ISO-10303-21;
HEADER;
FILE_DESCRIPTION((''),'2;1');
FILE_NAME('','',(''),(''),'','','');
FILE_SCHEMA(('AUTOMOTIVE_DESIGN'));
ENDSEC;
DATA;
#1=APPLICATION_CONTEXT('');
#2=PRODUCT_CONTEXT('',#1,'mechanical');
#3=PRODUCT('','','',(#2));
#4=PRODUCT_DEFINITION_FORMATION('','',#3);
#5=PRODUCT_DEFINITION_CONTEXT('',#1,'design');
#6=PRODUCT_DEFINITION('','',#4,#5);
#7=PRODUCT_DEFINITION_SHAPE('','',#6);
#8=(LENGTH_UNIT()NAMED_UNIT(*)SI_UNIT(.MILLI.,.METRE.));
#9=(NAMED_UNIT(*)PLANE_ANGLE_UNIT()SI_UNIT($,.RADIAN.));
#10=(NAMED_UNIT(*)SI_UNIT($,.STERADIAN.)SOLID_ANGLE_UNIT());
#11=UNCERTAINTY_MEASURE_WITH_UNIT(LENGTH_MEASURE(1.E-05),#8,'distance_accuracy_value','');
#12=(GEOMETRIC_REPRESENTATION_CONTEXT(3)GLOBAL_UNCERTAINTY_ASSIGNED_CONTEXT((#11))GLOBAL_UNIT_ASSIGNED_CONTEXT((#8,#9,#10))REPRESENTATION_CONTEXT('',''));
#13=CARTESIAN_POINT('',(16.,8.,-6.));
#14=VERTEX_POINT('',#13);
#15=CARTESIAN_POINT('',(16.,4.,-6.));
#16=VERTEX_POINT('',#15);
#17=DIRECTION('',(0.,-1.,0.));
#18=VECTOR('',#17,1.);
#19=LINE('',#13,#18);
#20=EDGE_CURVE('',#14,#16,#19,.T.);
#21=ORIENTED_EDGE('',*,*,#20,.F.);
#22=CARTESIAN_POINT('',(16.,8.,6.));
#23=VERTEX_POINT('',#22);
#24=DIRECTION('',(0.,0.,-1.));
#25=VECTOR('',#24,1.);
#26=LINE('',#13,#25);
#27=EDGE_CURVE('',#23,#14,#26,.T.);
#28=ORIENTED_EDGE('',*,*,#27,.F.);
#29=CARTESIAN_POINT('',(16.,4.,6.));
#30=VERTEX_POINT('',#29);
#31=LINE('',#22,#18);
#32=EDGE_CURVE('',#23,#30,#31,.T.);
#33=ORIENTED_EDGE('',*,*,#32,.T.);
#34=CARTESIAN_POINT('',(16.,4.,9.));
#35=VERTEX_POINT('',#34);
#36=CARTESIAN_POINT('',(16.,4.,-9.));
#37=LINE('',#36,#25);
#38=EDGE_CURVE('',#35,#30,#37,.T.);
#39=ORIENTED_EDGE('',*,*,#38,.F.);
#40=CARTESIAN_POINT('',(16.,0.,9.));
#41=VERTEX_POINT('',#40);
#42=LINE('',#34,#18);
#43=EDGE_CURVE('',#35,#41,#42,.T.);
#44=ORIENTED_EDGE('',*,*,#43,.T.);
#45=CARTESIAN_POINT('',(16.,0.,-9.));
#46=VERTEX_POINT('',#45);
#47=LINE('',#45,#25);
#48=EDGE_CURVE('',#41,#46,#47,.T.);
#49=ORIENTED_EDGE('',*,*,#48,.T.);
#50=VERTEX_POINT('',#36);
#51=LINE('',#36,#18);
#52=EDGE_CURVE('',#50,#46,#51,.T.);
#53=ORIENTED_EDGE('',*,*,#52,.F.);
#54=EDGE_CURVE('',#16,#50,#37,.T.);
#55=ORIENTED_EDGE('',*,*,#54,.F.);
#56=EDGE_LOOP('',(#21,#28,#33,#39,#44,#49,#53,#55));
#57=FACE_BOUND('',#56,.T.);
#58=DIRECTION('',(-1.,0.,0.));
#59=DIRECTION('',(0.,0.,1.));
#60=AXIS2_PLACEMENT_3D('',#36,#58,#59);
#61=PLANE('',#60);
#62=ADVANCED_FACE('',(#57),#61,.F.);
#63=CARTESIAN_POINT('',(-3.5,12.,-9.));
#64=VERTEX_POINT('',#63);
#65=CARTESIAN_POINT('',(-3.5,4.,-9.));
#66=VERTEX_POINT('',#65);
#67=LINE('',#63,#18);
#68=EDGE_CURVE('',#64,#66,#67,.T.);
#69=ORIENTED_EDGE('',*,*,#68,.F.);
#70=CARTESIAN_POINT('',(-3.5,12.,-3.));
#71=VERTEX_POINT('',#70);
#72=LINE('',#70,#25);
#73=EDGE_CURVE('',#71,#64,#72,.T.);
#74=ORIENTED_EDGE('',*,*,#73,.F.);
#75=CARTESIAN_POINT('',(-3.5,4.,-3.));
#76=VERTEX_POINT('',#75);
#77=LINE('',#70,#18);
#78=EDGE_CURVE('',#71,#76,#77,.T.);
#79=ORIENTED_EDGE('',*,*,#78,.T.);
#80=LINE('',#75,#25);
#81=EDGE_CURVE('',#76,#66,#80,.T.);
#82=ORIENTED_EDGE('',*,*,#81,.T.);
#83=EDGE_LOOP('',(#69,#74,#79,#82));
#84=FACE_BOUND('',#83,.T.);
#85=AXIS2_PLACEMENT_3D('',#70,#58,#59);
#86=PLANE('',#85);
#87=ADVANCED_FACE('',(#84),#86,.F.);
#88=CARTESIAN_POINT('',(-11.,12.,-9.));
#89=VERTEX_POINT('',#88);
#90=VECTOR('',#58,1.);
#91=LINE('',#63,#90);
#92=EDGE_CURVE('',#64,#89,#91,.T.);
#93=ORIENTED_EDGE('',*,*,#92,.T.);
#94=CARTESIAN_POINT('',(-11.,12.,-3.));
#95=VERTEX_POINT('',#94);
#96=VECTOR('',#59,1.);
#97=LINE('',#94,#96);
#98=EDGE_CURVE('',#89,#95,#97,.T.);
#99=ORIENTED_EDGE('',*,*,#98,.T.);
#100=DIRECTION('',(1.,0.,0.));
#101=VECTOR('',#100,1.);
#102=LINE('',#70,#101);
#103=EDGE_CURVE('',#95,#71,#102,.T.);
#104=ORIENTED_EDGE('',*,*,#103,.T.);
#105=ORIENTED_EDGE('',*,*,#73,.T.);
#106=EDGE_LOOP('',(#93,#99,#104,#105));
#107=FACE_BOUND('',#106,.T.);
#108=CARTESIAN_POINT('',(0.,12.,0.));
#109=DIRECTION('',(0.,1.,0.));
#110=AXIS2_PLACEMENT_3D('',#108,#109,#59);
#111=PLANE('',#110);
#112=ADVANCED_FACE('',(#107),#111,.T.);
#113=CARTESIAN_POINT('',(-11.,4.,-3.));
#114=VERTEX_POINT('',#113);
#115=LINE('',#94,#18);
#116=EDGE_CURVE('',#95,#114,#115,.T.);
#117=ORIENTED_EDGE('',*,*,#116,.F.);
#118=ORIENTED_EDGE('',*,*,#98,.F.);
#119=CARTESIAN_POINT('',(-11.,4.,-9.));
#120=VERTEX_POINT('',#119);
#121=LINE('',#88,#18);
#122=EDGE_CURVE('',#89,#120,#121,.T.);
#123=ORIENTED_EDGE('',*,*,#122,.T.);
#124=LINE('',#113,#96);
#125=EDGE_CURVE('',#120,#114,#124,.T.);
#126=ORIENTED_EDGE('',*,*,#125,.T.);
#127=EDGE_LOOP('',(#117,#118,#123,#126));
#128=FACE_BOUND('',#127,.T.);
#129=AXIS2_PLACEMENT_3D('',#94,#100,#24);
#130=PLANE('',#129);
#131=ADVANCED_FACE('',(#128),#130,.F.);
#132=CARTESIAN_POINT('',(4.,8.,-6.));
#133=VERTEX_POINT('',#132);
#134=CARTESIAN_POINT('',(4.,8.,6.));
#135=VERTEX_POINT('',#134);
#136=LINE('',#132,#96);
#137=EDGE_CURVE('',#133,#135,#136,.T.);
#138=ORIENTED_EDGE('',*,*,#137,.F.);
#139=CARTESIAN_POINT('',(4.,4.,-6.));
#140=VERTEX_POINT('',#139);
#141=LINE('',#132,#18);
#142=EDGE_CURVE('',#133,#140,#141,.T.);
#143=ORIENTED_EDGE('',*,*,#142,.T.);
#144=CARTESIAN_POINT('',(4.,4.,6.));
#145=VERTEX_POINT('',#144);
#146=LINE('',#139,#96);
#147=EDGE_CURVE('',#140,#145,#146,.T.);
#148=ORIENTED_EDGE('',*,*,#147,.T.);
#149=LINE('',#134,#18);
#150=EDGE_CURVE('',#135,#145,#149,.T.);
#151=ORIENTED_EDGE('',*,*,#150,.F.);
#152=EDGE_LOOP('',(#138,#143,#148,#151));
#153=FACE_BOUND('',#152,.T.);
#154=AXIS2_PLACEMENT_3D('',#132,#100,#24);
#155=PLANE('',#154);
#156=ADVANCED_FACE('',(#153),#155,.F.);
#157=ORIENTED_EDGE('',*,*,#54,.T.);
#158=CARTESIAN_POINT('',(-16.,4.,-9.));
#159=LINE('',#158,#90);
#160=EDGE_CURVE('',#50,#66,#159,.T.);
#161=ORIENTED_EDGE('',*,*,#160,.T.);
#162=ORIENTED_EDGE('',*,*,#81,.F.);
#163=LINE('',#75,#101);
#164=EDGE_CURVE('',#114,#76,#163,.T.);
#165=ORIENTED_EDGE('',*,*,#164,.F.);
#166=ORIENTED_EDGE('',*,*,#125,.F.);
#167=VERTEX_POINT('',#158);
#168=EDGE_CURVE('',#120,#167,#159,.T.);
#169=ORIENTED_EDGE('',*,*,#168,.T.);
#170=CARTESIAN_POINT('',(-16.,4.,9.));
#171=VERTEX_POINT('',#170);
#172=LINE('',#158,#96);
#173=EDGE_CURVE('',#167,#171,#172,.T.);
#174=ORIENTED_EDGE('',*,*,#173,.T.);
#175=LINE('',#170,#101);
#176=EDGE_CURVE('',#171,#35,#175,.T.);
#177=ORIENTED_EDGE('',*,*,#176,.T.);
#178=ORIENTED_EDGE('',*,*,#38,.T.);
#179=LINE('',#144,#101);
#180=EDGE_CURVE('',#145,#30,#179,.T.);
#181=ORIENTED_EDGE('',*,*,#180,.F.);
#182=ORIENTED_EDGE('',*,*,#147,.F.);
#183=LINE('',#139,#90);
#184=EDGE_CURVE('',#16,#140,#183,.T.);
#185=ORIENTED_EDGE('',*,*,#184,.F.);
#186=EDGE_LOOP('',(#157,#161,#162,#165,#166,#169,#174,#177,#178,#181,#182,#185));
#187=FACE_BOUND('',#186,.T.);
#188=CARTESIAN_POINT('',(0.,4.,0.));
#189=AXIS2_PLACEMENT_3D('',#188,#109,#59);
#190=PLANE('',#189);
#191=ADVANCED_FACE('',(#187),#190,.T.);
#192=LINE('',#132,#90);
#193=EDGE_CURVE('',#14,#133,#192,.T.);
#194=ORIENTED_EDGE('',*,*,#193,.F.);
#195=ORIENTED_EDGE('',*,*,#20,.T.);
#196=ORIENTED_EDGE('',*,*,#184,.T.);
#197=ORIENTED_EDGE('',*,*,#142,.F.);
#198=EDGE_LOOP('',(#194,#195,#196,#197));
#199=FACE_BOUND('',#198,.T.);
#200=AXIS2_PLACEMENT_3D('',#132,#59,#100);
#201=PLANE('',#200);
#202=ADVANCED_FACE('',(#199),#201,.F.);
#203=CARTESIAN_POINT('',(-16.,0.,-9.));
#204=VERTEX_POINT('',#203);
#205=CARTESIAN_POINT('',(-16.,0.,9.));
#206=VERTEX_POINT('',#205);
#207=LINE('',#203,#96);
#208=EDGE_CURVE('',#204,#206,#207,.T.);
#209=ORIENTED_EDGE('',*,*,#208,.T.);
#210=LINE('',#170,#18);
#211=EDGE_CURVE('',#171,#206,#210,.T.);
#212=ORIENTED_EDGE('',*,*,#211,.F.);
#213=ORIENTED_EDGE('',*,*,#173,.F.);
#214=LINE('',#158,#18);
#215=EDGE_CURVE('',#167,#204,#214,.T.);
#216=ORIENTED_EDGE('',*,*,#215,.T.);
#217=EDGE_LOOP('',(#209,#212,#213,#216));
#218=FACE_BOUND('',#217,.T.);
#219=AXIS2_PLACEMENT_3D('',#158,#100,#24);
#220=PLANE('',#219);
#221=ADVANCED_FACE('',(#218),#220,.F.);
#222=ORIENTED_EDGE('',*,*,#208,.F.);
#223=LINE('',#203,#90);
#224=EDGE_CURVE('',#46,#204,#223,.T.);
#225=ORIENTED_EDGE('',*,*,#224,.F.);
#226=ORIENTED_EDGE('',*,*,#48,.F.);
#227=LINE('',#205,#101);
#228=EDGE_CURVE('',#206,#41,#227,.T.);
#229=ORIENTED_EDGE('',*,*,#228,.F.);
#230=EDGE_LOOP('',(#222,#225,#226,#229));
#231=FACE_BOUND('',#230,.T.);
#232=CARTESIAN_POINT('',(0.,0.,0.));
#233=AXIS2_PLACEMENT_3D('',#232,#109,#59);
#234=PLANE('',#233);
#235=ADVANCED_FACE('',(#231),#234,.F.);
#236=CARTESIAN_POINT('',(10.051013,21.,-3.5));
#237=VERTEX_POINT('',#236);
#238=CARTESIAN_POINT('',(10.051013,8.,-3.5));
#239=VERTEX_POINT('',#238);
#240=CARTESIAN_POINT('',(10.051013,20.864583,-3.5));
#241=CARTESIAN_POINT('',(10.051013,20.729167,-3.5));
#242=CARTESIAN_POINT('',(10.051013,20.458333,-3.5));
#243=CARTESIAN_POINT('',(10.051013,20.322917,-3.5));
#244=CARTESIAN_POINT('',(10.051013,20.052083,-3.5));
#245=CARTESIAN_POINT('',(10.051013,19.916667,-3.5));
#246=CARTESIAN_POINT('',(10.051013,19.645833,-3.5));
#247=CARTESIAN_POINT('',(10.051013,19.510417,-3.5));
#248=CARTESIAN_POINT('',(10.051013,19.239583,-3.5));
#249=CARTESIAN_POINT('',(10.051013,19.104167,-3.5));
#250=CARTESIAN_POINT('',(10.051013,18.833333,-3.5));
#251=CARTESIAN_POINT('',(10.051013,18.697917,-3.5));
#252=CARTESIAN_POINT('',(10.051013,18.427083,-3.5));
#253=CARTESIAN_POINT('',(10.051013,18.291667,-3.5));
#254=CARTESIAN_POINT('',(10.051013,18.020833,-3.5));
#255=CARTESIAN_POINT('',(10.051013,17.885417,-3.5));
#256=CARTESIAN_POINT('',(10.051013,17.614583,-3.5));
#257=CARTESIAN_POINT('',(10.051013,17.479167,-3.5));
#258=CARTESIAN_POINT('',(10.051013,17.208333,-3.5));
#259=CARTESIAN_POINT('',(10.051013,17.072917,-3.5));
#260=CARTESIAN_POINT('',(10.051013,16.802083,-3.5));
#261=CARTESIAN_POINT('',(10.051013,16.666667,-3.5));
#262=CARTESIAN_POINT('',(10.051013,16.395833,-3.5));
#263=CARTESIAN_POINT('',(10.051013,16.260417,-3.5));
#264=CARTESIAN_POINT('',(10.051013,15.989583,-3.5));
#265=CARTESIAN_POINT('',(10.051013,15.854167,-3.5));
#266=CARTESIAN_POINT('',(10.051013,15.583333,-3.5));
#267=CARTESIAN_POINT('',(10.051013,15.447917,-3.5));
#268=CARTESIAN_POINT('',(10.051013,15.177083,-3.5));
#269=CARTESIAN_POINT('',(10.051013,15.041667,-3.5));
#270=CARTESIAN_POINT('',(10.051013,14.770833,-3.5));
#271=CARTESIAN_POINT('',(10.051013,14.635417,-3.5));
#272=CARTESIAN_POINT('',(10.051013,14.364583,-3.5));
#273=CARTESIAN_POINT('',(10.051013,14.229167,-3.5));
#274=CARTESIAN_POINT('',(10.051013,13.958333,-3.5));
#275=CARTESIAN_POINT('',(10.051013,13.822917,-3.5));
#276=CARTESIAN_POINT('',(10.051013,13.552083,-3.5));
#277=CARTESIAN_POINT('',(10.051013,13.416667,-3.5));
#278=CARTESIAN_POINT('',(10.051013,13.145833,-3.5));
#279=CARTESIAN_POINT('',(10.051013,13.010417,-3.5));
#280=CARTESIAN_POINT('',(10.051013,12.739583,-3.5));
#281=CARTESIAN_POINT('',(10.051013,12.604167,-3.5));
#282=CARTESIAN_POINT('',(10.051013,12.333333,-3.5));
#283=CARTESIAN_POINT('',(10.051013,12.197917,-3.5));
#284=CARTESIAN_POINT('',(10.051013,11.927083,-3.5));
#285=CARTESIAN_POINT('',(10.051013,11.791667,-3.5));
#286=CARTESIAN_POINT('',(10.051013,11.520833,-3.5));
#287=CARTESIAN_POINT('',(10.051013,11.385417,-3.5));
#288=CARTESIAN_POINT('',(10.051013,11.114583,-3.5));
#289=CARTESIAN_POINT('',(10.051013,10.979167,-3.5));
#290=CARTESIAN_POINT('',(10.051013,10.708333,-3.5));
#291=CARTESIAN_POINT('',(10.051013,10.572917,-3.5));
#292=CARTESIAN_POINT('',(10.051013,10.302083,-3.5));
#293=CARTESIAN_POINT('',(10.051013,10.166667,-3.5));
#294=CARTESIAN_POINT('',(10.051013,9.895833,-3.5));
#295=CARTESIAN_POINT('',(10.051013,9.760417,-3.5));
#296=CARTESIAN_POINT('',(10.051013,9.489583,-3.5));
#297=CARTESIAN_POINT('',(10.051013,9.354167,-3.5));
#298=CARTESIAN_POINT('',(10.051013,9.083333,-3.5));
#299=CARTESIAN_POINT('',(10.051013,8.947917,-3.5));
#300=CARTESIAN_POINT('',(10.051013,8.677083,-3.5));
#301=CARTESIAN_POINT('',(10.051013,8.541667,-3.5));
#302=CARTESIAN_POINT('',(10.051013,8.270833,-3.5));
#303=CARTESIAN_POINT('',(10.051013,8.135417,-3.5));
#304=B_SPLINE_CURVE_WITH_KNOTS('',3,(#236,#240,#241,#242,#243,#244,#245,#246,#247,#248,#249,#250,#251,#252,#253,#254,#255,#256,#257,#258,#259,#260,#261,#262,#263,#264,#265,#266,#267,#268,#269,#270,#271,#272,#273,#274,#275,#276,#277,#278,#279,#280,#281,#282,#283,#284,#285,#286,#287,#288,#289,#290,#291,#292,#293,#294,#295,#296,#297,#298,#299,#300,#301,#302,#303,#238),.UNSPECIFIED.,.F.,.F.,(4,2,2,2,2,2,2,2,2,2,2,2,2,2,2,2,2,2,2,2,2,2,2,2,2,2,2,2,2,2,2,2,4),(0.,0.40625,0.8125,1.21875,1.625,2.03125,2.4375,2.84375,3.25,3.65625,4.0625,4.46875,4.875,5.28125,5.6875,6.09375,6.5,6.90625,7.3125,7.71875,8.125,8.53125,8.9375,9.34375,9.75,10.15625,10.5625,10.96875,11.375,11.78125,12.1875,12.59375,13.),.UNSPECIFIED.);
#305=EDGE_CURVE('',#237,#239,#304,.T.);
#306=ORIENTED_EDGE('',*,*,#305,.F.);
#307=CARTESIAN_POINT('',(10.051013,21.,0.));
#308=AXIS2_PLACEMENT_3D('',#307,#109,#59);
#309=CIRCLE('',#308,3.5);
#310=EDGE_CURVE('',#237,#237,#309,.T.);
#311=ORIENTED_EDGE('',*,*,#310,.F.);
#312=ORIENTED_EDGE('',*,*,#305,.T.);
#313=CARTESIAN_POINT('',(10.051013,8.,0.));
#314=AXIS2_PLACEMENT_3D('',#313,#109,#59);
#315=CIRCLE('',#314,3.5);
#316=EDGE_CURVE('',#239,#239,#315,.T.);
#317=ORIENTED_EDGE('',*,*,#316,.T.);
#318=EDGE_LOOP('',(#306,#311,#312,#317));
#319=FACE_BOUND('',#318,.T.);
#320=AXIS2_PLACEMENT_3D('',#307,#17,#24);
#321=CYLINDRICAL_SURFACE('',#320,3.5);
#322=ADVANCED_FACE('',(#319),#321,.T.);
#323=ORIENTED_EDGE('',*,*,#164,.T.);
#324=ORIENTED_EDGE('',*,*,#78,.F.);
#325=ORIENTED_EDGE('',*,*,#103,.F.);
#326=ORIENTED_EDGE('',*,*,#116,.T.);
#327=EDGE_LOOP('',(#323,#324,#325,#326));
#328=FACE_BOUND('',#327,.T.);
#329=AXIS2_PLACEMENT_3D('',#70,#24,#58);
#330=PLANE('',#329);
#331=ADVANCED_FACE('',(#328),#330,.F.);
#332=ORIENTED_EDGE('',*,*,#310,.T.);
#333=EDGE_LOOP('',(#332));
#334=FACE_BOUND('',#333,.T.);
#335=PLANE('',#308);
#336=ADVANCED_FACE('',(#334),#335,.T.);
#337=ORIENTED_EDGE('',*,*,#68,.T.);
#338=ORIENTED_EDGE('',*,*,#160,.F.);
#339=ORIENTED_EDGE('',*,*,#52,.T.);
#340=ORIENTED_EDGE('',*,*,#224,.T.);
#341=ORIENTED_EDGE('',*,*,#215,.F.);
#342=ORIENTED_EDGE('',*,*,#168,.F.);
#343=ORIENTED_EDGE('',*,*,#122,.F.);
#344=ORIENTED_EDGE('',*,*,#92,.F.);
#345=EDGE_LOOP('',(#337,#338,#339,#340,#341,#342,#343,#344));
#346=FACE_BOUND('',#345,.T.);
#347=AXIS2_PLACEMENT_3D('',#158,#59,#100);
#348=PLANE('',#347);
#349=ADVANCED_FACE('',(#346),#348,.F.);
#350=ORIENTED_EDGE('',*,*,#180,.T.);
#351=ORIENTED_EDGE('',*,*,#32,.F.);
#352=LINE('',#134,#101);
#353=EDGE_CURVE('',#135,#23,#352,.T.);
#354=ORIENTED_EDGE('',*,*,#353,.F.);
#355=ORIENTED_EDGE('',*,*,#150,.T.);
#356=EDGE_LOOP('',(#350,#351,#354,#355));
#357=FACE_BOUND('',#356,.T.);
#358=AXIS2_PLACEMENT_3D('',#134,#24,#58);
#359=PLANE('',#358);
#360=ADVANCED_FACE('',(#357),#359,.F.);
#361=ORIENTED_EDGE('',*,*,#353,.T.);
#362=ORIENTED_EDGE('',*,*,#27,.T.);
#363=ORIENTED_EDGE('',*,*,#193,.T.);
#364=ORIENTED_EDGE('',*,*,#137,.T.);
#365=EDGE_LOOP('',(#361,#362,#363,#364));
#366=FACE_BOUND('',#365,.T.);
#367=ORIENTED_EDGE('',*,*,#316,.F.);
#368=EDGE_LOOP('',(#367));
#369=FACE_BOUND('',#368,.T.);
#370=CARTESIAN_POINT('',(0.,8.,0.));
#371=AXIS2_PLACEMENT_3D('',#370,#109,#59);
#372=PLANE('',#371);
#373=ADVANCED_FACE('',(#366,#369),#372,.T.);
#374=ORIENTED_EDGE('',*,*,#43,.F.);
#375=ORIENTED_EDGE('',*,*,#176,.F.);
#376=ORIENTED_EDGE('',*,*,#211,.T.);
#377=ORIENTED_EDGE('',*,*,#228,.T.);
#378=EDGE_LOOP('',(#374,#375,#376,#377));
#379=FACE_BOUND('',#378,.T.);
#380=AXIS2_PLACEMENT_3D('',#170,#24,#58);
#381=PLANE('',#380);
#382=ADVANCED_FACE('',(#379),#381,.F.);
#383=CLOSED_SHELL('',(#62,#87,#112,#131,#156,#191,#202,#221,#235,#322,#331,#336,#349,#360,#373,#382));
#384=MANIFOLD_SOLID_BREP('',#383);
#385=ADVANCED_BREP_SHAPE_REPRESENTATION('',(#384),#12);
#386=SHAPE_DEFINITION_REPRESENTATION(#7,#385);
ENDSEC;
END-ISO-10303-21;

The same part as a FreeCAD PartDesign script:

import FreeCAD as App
import Part
import Sketcher
from FreeCAD import Vector
Q = App.Units.Quantity


def add_polygon(sketch, points):
    """Adds a closed chain of lines whose ends are joined by coincident constraints."""
    first, n = sketch.GeometryCount, len(points)
    for a, b in zip(points, points[1:] + points[:1]):
        sketch.addGeometry(Part.LineSegment(App.Vector(*a, 0), App.Vector(*b, 0)), False)
    for i in range(n):
        sketch.addConstraint(Sketcher.Constraint("Coincident", first + i, 2, first + (i + 1) % n, 1))

doc = App.newDocument("Part")
body = doc.addObject("PartDesign::Body", "Body")

sketch1 = body.newObject("Sketcher::SketchObject", "Sketch")
sketch1.AttachmentSupport = (doc.getObject("XZ_Plane"), [""])
sketch1.MapMode = "FlatFace"
add_polygon(sketch1, [(-16, -9), (-16, 9), (16, 9), (16, -9)])
sketch1.addConstraint([
    Sketcher.Constraint("Vertical", 0),
    Sketcher.Constraint("Horizontal", 1),
    Sketcher.Constraint("Vertical", 2),
    Sketcher.Constraint("Horizontal", 3),
    Sketcher.Constraint("Symmetric", 0, 2, 2, 2, -1, 1),
    Sketcher.Constraint("DistanceX", 1, 1, 1, 2, Q("32 mm")),
    Sketcher.Constraint("DistanceY", 0, 1, 0, 2, Q("18 mm")),
])
pad1 = body.newObject("PartDesign::Pad", "Pad")
pad1.Profile = sketch1
pad1.Length = 4
pad1.Reversed = True

sketch2 = body.newObject("Sketcher::SketchObject", "Sketch001")
sketch2.AttachmentSupport = (doc.getObject("XZ_Plane"), [""])
sketch2.MapMode = "FlatFace"
sketch2.AttachmentOffset = App.Placement(Vector(0, 0, -4), App.Rotation())
add_polygon(sketch2, [(-11, -9), (-11, -3), (-4, -3), (-4, -9)])
sketch2.addConstraint([
    Sketcher.Constraint("Vertical", 0),
    Sketcher.Constraint("Horizontal", 1),
    Sketcher.Constraint("Vertical", 2),
    Sketcher.Constraint("Horizontal", 3),
    Sketcher.Constraint("DistanceY", 0, 1, 0, 2, Q("6 mm")),
    Sketcher.Constraint("DistanceX", 1, 1, 1, 2, Q("7.5 mm")),
    Sketcher.Constraint("DistanceX", 0, 2, -1, 1, Q("11 mm")),
    Sketcher.Constraint("DistanceY", 0, 2, -1, 1, Q("3 mm")),
])
pad2 = body.newObject("PartDesign::Pad", "Pad001")
pad2.Profile = sketch2
pad2.Length = 8
pad2.Reversed = True

sketch3 = body.newObject("Sketcher::SketchObject", "Sketch002")
sketch3.AttachmentSupport = (doc.getObject("XZ_Plane"), [""])
sketch3.MapMode = "FlatFace"
sketch3.AttachmentOffset = App.Placement(Vector(0, 0, -4), App.Rotation())
add_polygon(sketch3, [(4, -6), (4, 6), (16, 6), (16, -6)])
sketch3.addConstraint([
    Sketcher.Constraint("Vertical", 0),
    Sketcher.Constraint("Horizontal", 1),
    Sketcher.Constraint("Vertical", 2),
    Sketcher.Constraint("Horizontal", 3),
    Sketcher.Constraint("Equal", 3, 0),
    Sketcher.Constraint("DistanceX", 1, 1, 1, 2, Q("12 mm")),
    Sketcher.Constraint("DistanceX", -1, 1, 0, 2, Q("4 mm")),
    Sketcher.Constraint("DistanceY", -1, 1, 0, 2, Q("6 mm")),
])
pad3 = body.newObject("PartDesign::Pad", "Pad002")
pad3.Profile = sketch3
pad3.Length = 4
pad3.Reversed = True

sketch4 = body.newObject("Sketcher::SketchObject", "Sketch003")
sketch4.AttachmentSupport = (doc.getObject("XZ_Plane"), [""])
sketch4.MapMode = "FlatFace"
sketch4.AttachmentOffset = App.Placement(Vector(0, 0, -8), App.Rotation())
sketch4.addGeometry(Part.Circle(Vector(10.1, 0, 0), Vector(0, 0, 1), 3.5), False)
sketch4.addConstraint([
    Sketcher.Constraint("PointOnObject", 0, 3, -1),
    Sketcher.Constraint("Diameter", 0, Q("7 mm")),
    Sketcher.Constraint("DistanceX", -1, 1, 0, 3, Q("10.051013 mm")),
])
pad4 = body.newObject("PartDesign::Pad", "Pad003")
pad4.Profile = sketch4
pad4.Length = 13
pad4.Reversed = True

doc.recompute()
